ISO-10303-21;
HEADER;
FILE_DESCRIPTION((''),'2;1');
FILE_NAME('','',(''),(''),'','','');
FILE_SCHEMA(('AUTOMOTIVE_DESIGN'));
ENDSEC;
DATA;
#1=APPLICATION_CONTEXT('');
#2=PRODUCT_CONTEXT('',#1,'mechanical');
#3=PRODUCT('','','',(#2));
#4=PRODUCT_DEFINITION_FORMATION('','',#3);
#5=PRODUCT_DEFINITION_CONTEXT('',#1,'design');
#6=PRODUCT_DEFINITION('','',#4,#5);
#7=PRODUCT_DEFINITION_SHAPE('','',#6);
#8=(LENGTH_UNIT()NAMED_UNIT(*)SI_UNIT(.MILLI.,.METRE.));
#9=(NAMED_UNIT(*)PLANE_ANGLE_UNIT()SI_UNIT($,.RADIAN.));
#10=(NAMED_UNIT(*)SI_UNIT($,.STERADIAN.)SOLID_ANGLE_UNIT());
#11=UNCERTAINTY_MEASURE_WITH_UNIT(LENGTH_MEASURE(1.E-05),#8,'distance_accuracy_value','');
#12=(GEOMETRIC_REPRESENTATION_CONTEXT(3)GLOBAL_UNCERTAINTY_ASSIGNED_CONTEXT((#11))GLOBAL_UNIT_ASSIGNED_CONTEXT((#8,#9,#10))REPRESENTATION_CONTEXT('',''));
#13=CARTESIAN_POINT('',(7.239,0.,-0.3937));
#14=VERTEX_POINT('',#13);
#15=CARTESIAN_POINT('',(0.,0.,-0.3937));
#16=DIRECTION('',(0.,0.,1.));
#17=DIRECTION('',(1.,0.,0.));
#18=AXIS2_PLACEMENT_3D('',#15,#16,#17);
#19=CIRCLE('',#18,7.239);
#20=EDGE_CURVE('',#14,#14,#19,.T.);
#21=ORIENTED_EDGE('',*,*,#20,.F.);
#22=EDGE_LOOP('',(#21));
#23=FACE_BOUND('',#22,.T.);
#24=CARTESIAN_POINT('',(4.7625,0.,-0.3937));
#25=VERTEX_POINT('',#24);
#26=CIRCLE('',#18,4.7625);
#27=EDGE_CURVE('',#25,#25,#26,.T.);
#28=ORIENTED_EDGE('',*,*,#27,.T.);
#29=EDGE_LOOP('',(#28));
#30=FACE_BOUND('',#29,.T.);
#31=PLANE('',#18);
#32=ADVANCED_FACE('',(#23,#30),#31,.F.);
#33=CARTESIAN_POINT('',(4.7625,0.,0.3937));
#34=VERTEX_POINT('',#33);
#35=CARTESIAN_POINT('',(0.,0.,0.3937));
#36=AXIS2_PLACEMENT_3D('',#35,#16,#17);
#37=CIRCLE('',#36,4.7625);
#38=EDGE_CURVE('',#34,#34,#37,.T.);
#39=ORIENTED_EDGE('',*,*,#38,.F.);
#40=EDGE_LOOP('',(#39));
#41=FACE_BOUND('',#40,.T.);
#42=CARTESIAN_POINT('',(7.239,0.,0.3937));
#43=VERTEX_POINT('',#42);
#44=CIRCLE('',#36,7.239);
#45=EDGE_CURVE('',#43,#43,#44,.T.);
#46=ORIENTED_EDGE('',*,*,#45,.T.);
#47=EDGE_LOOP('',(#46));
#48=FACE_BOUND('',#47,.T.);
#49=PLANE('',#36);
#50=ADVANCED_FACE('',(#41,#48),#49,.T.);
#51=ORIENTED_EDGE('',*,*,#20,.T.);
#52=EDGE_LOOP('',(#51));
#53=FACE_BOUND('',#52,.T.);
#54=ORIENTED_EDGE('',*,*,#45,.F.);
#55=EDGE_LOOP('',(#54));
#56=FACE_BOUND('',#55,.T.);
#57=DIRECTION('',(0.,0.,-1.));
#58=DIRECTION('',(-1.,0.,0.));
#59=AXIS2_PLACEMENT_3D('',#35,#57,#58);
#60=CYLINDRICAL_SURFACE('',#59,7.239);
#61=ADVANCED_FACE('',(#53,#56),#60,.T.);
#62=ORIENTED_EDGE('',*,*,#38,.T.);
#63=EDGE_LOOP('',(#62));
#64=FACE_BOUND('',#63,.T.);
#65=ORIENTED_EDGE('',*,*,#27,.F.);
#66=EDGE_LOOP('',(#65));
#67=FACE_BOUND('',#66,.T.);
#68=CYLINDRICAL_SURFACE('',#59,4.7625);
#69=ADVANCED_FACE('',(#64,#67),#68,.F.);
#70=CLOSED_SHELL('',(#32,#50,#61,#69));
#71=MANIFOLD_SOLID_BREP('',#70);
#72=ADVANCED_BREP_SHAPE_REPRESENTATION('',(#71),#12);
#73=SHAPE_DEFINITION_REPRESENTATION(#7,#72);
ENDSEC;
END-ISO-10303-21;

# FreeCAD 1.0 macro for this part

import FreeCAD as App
import Part
import Sketcher
Q = App.Units.Quantity

doc = App.newDocument("Part")
body = doc.addObject("PartDesign::Body", "Body")

sketch1 = body.newObject("Sketcher::SketchObject", "Sketch")
sketch1.AttachmentSupport = (doc.getObject("XY_Plane"), [""])
sketch1.MapMode = "FlatFace"
sketch1.addGeometry(Part.Circle(App.Vector(0, 0, 0), App.Vector(0, 0, 1), 7.2), False)
sketch1.addGeometry(Part.Circle(App.Vector(0, 0, 0), App.Vector(0, 0, 1), 4.8), False)
sketch1.addConstraint(Sketcher.Constraint("Coincident", 0, 3, -1, 1))
sketch1.addConstraint(Sketcher.Constraint("Coincident", 1, 3, -1, 1))
sketch1.addConstraint(Sketcher.Constraint("Diameter", 0, Q("0.57 in")))
sketch1.addConstraint(Sketcher.Constraint("Diameter", 1, Q("0.375 in")))
pad1 = body.newObject("PartDesign::Pad", "Pad")
pad1.Profile = sketch1
pad1.Length = Q("0.031 in")
pad1.Midplane = True

doc.recompute()
